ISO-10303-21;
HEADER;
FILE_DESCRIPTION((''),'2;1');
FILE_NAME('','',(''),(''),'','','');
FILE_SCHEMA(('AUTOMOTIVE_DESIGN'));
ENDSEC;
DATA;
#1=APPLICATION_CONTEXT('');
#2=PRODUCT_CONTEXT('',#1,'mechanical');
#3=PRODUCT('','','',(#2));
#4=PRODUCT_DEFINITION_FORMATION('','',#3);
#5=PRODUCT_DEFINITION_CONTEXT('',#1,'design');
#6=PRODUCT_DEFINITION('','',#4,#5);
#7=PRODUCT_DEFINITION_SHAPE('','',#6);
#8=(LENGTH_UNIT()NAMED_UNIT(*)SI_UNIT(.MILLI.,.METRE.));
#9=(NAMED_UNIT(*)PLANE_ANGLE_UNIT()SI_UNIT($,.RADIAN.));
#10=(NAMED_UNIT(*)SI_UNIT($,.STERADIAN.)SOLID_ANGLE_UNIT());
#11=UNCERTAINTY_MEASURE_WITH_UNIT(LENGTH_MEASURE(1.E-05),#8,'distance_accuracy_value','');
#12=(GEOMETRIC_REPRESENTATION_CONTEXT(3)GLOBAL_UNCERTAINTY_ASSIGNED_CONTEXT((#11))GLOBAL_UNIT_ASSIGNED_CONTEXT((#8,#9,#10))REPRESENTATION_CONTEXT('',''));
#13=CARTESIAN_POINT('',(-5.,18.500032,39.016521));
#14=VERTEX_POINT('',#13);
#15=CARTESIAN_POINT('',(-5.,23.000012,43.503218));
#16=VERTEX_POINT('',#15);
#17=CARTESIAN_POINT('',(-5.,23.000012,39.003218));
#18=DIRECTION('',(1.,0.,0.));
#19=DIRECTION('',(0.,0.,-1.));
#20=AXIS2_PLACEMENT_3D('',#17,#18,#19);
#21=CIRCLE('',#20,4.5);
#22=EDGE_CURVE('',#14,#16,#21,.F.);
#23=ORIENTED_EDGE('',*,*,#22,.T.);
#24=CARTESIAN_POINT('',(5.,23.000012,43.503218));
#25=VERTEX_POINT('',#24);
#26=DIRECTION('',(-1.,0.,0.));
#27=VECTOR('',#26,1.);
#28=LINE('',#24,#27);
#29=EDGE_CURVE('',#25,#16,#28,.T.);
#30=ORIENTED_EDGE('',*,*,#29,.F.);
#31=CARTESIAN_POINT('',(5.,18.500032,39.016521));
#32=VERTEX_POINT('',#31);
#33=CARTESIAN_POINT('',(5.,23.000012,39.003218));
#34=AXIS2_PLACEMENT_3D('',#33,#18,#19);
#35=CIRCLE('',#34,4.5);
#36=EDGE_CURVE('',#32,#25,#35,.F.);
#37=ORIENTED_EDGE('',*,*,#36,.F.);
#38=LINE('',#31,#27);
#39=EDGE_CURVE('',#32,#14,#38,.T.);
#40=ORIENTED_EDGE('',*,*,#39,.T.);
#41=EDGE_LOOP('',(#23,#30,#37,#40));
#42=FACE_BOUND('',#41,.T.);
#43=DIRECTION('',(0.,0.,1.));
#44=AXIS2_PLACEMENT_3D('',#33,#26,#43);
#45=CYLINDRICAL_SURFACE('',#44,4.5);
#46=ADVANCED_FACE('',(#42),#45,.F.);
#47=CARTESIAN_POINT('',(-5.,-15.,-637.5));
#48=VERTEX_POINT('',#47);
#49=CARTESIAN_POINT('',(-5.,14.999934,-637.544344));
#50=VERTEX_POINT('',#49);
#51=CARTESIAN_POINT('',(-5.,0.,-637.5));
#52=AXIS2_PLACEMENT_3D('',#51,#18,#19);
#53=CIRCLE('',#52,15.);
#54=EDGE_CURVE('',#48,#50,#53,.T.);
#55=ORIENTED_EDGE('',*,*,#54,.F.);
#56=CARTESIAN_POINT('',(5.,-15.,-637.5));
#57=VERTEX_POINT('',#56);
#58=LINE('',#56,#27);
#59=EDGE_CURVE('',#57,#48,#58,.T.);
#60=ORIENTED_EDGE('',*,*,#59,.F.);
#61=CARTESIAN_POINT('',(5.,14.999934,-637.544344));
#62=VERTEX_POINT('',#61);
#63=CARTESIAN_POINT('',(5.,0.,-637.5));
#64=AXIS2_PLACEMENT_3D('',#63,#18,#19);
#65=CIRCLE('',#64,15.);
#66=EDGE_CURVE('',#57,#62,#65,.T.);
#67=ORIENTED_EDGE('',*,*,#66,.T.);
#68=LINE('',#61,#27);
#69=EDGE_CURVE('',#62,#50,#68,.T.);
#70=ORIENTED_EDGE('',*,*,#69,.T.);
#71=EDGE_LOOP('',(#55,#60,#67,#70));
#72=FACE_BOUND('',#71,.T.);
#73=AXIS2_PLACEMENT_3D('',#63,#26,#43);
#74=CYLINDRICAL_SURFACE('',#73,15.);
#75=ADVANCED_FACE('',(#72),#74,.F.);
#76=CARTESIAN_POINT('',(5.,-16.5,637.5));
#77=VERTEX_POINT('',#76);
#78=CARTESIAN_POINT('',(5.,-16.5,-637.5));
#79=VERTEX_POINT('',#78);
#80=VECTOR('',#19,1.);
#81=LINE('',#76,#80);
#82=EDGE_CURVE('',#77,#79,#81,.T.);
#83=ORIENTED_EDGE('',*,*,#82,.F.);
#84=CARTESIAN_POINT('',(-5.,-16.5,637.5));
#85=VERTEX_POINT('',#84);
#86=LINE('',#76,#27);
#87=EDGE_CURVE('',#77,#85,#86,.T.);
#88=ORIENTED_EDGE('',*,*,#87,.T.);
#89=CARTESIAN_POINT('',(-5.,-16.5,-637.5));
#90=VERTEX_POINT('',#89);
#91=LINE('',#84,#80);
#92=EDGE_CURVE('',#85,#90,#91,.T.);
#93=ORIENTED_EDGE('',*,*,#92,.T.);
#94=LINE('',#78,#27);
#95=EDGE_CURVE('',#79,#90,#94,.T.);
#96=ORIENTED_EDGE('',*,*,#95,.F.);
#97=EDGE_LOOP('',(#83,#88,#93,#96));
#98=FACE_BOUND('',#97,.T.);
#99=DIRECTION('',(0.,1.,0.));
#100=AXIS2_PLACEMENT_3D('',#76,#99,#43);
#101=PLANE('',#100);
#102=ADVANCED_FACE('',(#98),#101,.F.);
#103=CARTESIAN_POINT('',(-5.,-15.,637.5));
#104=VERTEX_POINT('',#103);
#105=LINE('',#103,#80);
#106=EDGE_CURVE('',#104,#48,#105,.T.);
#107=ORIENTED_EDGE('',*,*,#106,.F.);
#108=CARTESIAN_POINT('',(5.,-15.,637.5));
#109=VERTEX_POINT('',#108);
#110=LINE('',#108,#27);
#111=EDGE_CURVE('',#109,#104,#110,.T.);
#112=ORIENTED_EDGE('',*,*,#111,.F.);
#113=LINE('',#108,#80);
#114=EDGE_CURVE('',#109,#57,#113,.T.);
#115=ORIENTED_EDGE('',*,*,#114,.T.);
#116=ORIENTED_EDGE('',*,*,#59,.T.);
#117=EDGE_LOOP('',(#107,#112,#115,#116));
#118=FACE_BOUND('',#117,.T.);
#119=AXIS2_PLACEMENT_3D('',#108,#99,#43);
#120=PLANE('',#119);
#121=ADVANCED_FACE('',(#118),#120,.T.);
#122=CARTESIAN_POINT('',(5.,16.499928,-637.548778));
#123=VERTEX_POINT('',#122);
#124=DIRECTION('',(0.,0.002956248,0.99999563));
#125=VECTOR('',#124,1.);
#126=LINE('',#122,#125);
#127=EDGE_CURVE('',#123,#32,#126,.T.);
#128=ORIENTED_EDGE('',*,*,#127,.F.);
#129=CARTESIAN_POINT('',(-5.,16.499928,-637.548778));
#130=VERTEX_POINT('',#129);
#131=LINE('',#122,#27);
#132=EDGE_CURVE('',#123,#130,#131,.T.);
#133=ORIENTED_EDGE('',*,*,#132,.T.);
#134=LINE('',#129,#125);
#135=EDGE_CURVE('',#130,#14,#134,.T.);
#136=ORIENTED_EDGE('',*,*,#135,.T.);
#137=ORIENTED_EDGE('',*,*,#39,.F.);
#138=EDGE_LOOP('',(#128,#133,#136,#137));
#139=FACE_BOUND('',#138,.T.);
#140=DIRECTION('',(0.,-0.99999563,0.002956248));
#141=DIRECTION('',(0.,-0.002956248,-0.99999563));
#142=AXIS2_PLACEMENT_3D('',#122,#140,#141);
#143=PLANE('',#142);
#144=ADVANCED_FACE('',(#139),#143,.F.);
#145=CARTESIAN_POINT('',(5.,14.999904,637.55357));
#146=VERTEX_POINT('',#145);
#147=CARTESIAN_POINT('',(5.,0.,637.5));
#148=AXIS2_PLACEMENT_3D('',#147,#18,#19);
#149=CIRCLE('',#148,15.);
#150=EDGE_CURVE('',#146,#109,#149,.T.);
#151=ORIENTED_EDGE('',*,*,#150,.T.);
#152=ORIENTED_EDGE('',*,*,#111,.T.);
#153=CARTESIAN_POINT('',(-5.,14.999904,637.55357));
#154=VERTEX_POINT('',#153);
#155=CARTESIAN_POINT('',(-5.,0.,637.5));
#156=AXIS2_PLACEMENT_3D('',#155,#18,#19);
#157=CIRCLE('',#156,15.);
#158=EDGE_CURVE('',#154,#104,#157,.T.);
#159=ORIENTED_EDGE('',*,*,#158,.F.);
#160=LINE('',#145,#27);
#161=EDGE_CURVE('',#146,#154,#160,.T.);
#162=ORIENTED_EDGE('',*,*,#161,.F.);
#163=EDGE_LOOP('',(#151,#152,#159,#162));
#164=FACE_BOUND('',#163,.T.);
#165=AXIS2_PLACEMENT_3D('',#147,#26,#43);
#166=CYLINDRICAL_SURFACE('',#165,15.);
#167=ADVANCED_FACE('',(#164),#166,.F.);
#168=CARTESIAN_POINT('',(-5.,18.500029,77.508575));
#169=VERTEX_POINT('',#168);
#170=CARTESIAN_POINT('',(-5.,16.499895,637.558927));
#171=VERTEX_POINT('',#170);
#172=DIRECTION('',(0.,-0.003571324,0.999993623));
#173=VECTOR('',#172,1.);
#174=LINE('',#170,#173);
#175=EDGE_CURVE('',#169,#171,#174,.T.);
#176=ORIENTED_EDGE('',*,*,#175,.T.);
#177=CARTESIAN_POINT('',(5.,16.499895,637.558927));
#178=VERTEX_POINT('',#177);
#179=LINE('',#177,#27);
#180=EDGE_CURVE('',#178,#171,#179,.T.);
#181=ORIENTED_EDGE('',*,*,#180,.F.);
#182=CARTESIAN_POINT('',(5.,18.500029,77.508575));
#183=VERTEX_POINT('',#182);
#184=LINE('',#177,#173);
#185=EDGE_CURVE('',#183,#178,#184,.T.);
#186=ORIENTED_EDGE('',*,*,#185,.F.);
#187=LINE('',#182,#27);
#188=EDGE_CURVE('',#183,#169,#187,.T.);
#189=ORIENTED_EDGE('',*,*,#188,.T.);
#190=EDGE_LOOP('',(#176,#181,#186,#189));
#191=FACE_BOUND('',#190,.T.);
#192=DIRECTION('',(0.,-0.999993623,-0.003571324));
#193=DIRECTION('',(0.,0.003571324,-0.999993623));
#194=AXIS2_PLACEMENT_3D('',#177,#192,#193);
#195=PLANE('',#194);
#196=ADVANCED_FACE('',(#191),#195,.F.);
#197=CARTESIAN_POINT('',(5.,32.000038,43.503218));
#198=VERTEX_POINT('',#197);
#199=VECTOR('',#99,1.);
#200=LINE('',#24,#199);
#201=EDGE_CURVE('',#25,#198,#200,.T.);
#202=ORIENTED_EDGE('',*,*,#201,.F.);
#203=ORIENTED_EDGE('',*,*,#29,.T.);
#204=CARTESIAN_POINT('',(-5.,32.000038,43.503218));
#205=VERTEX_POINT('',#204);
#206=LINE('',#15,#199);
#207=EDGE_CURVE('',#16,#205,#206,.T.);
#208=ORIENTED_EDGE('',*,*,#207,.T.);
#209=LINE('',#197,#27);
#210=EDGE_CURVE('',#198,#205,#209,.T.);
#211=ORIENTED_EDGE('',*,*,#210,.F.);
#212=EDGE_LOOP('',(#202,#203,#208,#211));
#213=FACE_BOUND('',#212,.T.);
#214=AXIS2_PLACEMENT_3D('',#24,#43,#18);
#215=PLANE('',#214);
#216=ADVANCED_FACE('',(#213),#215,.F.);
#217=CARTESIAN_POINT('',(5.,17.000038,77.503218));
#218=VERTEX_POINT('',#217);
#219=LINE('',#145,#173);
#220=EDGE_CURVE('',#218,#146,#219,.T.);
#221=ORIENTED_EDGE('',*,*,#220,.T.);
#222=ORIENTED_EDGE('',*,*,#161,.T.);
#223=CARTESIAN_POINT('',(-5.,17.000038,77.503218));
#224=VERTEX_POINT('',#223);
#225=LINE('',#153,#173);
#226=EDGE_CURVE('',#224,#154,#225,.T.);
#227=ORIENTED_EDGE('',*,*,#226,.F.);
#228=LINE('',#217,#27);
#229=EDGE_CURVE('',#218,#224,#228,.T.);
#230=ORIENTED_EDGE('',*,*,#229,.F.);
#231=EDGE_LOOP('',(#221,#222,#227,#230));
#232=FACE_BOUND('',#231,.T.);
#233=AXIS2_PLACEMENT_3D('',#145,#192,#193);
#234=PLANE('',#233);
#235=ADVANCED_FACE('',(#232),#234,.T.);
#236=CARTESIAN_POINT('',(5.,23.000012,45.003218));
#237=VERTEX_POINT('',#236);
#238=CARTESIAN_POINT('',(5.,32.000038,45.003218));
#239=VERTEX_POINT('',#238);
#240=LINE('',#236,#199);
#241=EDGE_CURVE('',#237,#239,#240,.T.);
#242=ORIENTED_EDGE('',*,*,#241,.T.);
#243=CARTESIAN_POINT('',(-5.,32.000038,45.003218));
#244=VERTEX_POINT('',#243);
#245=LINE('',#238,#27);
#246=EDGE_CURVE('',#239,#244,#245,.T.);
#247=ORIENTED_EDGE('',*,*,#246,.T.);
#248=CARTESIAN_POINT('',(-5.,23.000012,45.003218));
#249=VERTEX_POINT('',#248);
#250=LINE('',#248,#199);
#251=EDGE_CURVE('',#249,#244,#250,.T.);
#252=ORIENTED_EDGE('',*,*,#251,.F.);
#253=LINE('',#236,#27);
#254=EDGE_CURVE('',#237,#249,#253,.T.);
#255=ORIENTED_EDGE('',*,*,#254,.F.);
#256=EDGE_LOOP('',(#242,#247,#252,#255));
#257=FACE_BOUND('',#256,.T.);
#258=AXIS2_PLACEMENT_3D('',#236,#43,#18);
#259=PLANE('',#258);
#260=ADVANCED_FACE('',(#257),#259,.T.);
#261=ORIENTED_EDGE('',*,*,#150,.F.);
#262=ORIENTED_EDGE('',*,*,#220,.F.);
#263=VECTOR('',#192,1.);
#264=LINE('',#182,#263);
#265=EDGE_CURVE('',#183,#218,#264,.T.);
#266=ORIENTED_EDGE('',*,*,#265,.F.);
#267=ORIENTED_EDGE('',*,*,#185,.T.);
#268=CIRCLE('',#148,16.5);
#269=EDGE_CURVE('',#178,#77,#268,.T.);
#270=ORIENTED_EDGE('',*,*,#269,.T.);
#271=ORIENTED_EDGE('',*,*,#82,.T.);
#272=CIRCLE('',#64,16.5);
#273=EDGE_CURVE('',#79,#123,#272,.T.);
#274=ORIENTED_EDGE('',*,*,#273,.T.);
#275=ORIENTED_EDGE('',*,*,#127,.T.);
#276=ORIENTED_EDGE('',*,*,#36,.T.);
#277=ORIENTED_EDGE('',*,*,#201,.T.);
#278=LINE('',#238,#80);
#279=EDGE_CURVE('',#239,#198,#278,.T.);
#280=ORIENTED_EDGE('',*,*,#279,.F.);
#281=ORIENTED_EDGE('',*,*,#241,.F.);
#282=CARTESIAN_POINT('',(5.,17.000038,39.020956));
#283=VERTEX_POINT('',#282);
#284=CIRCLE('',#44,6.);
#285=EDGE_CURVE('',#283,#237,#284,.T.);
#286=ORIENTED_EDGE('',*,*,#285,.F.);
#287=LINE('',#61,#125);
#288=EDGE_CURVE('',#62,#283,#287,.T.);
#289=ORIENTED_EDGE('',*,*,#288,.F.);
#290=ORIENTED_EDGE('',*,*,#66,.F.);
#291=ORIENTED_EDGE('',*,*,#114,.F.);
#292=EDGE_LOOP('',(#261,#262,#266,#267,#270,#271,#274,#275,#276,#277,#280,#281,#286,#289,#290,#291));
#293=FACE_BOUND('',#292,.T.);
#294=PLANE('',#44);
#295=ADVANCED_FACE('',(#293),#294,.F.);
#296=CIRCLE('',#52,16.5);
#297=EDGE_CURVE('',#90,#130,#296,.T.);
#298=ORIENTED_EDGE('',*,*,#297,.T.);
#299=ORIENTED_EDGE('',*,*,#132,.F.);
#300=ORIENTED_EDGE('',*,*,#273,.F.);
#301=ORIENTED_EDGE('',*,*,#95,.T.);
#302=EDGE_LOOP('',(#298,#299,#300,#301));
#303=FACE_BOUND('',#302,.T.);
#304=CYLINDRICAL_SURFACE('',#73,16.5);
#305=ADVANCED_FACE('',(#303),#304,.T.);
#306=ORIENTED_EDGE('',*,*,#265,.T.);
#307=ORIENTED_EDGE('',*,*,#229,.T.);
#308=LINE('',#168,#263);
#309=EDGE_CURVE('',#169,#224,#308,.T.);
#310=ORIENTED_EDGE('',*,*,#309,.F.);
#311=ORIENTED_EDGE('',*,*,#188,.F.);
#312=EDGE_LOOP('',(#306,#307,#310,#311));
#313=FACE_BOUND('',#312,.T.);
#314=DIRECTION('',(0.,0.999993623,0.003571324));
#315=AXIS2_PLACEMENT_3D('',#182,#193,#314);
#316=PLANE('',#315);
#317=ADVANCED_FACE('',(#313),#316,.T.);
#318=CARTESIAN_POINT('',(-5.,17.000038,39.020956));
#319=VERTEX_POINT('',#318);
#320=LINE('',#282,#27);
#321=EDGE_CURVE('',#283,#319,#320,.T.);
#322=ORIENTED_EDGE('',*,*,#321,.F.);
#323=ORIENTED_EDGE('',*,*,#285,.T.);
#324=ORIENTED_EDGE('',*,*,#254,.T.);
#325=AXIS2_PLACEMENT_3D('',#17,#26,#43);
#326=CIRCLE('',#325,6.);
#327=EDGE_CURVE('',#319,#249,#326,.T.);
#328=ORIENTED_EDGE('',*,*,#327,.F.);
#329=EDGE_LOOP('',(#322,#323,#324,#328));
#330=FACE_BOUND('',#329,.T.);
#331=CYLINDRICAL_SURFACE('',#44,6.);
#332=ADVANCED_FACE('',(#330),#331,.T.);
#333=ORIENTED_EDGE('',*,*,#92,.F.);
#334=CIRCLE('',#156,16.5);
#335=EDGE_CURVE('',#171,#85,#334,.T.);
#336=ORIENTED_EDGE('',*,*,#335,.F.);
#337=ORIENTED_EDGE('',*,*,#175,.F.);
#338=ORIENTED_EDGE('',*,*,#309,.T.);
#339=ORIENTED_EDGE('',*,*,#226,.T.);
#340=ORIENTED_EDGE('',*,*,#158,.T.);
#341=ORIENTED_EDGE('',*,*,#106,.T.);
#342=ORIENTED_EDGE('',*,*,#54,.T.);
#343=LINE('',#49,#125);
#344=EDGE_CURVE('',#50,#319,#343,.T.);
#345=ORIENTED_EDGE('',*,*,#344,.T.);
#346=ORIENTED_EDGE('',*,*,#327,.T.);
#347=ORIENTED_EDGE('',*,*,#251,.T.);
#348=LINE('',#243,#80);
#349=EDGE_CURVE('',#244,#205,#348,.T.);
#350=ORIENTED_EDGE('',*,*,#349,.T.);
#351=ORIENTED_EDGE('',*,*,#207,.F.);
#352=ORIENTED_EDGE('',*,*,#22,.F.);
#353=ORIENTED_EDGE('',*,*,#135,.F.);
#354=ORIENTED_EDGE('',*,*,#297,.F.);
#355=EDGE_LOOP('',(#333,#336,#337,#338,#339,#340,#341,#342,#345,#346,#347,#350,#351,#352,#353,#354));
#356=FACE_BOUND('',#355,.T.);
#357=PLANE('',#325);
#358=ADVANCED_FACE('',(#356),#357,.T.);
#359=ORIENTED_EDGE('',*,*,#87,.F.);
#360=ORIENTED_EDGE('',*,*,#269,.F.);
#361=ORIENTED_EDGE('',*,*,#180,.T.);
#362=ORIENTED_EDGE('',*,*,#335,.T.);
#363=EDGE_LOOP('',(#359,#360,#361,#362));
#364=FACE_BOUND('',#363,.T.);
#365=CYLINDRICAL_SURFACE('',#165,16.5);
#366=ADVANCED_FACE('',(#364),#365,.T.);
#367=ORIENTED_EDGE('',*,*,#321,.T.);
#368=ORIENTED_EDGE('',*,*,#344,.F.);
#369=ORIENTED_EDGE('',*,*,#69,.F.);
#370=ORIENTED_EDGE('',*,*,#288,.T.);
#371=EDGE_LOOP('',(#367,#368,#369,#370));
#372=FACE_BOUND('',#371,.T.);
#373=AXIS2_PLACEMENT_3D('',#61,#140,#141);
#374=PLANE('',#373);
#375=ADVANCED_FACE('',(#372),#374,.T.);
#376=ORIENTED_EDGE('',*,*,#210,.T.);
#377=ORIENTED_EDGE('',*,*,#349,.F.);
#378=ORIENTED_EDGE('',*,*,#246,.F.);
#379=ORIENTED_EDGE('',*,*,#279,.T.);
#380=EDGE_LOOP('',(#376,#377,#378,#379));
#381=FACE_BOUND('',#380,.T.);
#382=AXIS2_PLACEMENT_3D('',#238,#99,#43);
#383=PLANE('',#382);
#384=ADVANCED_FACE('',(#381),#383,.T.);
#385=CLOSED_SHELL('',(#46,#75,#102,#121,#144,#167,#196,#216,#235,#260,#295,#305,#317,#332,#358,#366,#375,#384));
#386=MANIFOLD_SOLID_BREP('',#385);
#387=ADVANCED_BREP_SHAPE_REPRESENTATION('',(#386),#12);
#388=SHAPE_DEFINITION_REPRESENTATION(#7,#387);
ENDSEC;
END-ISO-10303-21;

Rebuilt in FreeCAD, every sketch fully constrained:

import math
import FreeCAD as App
import Part
import Sketcher
from FreeCAD import Vector

doc = App.newDocument("Part")
params = doc.addObject("Spreadsheet::Sheet", "Params")
for row, (alias, value) in enumerate([
    ("sketch1_radius", "6 mm"),
    ("sketch1_radius2", "15 mm"),
    ("sketch1_radius3", "16.5 mm"),
    ("sketch1_height", "1275 mm"),
    ("pad1_length", "10 mm"),
], start=1):
    params.set(f"A{row}", alias)
    params.set(f"B{row}", "=" + value)
    params.setAlias(f"B{row}", alias)

body = doc.addObject("PartDesign::Body", "Body")

sketch1 = body.newObject("Sketcher::SketchObject", "Sketch")
sketch1.AttachmentSupport = (doc.getObject("YZ_Plane"), [""])
sketch1.MapMode = "FlatFace"
sketch1.addGeometry([
    Part.LineSegment(Vector(15, 637.6, 0), Vector(17, 77.5, 0)),
    Part.LineSegment(Vector(17, 77.5, 0), Vector(18.5, 77.5, 0)),
    Part.LineSegment(Vector(18.5, 77.5, 0), Vector(16.5, 637.6, 0)),
    Part.ArcOfCircle(Part.Circle(Vector(0, 637.5, 0), Vector(0, 0, 1), 16.5), math.radians(0), math.radians(180)),
    Part.LineSegment(Vector(-16.5, 637.5, 0), Vector(-16.5, -637.5, 0)),
    Part.ArcOfCircle(Part.Circle(Vector(0, -637.5, 0), Vector(0, 0, 1), 16.5), math.radians(180), math.radians(360)),
    Part.LineSegment(Vector(16.5, -637.5, 0), Vector(18.5, 39, 0)),
    Part.ArcOfCircle(Part.Circle(Vector(23, 39, 0), Vector(0, 0, 1), 4.5), math.radians(90), math.radians(180)),
    Part.LineSegment(Vector(23, 43.5, 0), Vector(32, 43.5, 0)),
    Part.LineSegment(Vector(32, 43.5, 0), Vector(32, 45, 0)),
    Part.LineSegment(Vector(32, 45, 0), Vector(23, 45, 0)),
    Part.ArcOfCircle(Part.Circle(Vector(23, 39, 0), Vector(0, 0, 1), 6), math.radians(90), math.radians(180)),
    Part.LineSegment(Vector(17, 39, 0), Vector(15, -637.5, 0)),
    Part.ArcOfCircle(Part.Circle(Vector(0, -637.5, 0), Vector(0, 0, 1), 15), math.radians(180), math.radians(360)),
    Part.LineSegment(Vector(-15, -637.5, 0), Vector(-15, 637.5, 0)),
    Part.ArcOfCircle(Part.Circle(Vector(0, 637.5, 0), Vector(0, 0, 1), 15), math.radians(0), math.radians(180)),
], False)
sketch1.addConstraint([
    Sketcher.Constraint("Coincident", 0, 2, 1, 1),
    Sketcher.Constraint("Coincident", 1, 2, 2, 1),
    Sketcher.Constraint("Tangent", 2, 2, 3, 1),
    Sketcher.Constraint("Tangent", 3, 2, 4, 1),
    Sketcher.Constraint("Tangent", 4, 2, 5, 1),
    Sketcher.Constraint("Tangent", 5, 2, 6, 1),
    Sketcher.Constraint("Tangent", 6, 2, 7, 2),
    Sketcher.Constraint("Tangent", 7, 1, 8, 1),
    Sketcher.Constraint("Coincident", 8, 2, 9, 1),
    Sketcher.Constraint("Coincident", 9, 2, 10, 1),
    Sketcher.Constraint("Tangent", 10, 2, 11, 1),
    Sketcher.Constraint("Tangent", 11, 2, 12, 1),
    Sketcher.Constraint("Tangent", 12, 2, 13, 2),
    Sketcher.Constraint("Tangent", 13, 1, 14, 1),
    Sketcher.Constraint("Tangent", 14, 2, 15, 2),
    Sketcher.Constraint("Tangent", 15, 1, 0, 1),
    Sketcher.Constraint("Vertical", 4),
    Sketcher.Constraint("Horizontal", 8),
    Sketcher.Constraint("Vertical", 9),
    Sketcher.Constraint("Horizontal", 10),
    Sketcher.Constraint("Vertical", 14),
    Sketcher.Constraint("Coincident", 11, 3, 7, 3),
    Sketcher.Constraint("Coincident", 13, 3, 5, 3),
    Sketcher.Constraint("Coincident", 15, 3, 3, 3),
    Sketcher.Constraint("Equal", 3, 5),
    Sketcher.Constraint("Symmetric", 3, 3, 5, 3, -1, 1),
    Sketcher.Constraint("Perpendicular", 0, 1),
    Sketcher.Constraint("Perpendicular", 1, 2),
    Sketcher.Constraint("Parallel", 6, 12),
    Sketcher.Constraint("Vertical", 0, 2, 11, 2),
    Sketcher.Constraint("Radius", 11, 6.0),
    Sketcher.Constraint("Radius", 13, 15.0),
    Sketcher.Constraint("Radius", 3, 16.5),
    Sketcher.Constraint("DistanceY", 4, 2, 4, 1, 1275.0),
    Sketcher.Constraint("DistanceY", 7, 1, 0, 2, 34.0),
    Sketcher.Constraint("DistanceY", 12, 2, 11, 2, 676.565299),
    Sketcher.Constraint("DistanceX", 8, 1, 8, 2, 9.000026),
    Sketcher.Constraint("DistanceY", -1, 1, 7, 3, 39.003218),
])
sketch1.setExpression("Constraints[30]", "Params.sketch1_radius")
sketch1.setExpression("Constraints[31]", "Params.sketch1_radius2")
sketch1.setExpression("Constraints[32]", "Params.sketch1_radius3")
sketch1.setExpression("Constraints[33]", "Params.sketch1_height")
pad1 = body.newObject("PartDesign::Pad", "Pad")
pad1.Profile = sketch1
pad1.setExpression("Length", "Params.pad1_length")
pad1.Midplane = True

doc.recompute()
